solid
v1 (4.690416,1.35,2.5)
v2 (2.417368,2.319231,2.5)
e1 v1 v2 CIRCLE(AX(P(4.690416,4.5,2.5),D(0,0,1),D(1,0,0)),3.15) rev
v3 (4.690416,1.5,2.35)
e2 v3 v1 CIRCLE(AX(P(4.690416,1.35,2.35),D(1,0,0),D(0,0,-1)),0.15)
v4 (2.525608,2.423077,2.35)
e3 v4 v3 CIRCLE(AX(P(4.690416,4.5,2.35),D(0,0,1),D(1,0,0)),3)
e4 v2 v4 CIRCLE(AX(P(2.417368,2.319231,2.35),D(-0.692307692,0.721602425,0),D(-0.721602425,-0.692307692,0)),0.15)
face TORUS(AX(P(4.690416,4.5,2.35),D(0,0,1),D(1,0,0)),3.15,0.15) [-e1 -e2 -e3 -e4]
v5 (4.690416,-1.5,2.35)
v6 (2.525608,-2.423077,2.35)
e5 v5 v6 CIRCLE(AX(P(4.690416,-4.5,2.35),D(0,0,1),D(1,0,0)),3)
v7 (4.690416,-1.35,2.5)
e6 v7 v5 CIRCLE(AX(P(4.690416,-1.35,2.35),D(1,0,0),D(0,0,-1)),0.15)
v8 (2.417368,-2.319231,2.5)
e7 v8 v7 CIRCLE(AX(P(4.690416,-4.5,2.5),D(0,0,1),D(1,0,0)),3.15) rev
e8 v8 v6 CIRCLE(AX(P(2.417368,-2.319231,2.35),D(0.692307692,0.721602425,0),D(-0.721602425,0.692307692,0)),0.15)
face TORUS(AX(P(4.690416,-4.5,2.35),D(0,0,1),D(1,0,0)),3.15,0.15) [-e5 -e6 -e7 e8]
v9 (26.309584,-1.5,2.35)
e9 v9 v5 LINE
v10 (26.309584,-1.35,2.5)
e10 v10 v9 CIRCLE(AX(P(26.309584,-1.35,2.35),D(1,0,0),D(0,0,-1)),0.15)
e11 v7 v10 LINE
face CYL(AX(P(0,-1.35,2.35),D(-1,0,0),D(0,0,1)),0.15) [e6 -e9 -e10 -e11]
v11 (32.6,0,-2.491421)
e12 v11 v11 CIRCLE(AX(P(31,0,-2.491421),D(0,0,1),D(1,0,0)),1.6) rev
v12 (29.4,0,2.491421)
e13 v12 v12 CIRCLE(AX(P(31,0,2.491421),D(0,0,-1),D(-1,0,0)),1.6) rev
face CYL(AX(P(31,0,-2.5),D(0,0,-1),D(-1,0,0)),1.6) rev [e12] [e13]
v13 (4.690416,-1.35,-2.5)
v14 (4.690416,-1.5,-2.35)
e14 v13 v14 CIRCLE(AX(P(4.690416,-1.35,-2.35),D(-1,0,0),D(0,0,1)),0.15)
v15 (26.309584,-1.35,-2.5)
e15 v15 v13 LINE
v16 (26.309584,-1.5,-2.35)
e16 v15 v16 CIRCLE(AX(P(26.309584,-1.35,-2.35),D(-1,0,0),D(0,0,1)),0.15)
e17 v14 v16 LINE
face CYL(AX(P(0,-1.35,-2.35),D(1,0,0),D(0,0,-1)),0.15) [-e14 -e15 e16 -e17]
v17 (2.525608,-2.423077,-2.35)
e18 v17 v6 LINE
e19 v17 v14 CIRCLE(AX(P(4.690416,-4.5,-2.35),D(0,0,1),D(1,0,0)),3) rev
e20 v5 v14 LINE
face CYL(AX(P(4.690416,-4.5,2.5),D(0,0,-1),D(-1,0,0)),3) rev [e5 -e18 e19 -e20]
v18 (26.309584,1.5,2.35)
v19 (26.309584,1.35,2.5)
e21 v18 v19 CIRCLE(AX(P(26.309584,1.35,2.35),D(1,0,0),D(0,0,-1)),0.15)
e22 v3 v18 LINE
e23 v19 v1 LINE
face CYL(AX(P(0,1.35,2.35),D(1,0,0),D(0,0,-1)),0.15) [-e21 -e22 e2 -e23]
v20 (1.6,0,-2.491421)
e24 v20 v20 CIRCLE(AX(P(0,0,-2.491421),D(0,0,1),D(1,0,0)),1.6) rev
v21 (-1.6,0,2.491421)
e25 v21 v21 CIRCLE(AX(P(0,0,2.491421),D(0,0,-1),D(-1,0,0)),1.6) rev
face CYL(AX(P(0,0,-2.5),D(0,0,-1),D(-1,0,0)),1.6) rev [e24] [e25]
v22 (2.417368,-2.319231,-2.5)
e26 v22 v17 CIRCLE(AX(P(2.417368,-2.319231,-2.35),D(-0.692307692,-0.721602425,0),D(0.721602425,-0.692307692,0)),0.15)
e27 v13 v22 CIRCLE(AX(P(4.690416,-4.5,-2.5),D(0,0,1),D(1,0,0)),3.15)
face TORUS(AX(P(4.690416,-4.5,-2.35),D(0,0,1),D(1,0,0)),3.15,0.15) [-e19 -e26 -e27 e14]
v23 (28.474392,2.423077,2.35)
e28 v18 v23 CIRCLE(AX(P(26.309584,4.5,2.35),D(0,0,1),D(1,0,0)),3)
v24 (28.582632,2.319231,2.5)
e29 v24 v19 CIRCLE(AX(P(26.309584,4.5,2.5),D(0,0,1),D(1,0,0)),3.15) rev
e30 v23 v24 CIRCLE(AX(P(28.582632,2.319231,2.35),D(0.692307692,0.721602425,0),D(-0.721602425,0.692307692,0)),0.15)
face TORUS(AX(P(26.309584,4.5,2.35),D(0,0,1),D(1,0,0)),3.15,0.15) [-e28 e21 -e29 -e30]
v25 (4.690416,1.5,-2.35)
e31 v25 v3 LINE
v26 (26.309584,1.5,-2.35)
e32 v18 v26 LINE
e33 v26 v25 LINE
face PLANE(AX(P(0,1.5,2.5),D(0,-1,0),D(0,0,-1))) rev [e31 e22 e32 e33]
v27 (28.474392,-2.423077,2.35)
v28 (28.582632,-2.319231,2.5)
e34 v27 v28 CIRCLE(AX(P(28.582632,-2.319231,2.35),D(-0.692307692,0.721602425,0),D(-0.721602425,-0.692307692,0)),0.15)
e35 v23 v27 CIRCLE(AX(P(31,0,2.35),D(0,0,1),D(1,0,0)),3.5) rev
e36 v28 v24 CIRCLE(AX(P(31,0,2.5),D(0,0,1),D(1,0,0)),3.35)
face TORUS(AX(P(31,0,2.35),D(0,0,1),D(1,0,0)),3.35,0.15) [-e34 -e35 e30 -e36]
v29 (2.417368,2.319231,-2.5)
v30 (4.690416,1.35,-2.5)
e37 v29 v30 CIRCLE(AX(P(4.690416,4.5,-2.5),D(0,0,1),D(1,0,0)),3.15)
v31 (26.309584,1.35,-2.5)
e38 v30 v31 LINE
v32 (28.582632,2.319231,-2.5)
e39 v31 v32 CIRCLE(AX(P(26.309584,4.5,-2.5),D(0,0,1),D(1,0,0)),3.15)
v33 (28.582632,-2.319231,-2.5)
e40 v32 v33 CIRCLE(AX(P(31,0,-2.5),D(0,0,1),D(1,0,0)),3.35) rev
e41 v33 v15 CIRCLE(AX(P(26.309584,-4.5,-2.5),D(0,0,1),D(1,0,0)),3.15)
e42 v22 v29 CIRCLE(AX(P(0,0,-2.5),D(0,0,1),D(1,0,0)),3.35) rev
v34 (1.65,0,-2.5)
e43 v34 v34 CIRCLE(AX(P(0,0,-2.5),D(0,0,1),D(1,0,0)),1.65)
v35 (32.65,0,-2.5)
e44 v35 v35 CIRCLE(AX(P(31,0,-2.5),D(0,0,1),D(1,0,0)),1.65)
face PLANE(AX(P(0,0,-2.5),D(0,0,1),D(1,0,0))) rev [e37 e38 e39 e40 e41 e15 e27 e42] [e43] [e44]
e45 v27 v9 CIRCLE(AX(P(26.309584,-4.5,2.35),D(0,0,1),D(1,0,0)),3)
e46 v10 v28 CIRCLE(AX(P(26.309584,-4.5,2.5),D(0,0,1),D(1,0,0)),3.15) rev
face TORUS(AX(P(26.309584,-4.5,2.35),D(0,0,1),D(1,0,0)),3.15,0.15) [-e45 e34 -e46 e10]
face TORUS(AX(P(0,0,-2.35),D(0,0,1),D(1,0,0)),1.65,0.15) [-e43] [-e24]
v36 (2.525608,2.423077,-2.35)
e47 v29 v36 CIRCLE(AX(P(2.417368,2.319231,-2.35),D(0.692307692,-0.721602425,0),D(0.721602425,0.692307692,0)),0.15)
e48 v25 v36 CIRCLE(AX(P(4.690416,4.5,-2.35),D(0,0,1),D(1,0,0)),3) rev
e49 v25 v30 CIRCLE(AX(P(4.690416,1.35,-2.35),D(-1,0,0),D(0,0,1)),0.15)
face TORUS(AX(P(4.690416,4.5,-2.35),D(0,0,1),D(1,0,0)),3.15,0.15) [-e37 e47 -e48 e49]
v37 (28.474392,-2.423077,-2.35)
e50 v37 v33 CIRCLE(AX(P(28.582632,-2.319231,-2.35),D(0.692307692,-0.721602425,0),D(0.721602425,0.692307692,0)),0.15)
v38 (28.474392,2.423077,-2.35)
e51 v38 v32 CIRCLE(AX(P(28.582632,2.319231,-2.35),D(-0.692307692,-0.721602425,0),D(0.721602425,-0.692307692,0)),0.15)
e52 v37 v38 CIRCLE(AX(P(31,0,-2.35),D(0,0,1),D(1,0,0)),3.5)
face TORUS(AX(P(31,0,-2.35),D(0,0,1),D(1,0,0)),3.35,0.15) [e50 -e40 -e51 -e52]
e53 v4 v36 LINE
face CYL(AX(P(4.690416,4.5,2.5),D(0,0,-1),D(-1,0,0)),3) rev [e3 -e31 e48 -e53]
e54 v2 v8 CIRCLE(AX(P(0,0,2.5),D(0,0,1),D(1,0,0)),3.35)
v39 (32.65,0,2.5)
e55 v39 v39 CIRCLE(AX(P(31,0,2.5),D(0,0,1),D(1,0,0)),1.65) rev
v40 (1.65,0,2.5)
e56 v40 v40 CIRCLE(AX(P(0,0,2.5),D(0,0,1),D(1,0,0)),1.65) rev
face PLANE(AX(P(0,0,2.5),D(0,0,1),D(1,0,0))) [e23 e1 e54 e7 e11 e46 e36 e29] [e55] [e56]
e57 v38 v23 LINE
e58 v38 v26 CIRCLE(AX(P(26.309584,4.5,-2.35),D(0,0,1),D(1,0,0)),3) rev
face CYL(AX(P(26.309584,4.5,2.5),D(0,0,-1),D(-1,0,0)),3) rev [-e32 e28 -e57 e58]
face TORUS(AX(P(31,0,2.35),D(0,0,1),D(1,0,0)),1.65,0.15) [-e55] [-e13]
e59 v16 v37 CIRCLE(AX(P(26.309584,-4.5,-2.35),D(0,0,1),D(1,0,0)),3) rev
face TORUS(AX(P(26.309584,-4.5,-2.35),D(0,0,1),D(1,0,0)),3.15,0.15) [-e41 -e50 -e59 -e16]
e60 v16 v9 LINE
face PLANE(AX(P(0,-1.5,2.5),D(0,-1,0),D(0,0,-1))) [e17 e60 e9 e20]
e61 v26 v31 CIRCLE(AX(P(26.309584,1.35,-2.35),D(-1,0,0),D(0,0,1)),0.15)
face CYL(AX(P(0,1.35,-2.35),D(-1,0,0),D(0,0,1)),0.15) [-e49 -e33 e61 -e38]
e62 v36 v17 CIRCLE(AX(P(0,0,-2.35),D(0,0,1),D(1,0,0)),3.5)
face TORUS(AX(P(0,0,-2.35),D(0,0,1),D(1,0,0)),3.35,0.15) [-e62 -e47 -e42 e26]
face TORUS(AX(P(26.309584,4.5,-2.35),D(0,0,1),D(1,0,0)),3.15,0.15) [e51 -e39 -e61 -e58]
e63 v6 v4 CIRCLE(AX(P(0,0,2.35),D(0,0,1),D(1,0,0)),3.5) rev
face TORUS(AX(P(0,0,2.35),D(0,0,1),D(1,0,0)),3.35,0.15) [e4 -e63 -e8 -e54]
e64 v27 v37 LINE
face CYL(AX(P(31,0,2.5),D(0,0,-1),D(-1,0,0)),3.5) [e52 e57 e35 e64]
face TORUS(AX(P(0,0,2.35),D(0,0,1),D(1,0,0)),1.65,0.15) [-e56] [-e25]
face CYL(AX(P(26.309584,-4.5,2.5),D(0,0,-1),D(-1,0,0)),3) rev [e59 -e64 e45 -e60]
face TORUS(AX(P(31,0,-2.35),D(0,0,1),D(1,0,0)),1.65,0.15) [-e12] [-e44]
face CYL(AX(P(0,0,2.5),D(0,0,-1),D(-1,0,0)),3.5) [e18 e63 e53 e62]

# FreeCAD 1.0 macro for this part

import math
import FreeCAD as App
import Part
import Sketcher

V = App.Vector


def edges_at(feature, points):
    """Names of the edges that pass closest to the given points."""
    edges = feature.Shape.Edges
    near = lambda p: min(range(len(edges)), key=lambda i: edges[i].distToShape(Part.Vertex(*p))[0])
    return sorted({f"Edge{near(p) + 1}" for p in points})

doc = App.newDocument("Part")
params = doc.addObject("Spreadsheet::Sheet", "Params")
for row, (alias, value) in enumerate([
    ("sketch1_diameter", "3 mm"),
    ("sketch1_radius", "3.5 mm"),
    ("pad1_length", "5 mm"),
    ("fillet_radius", "3 mm"),
    ("fillet2_radius", "0.15 mm"),
    ("sketch2_diameter", "3.2 mm"),
    ("hole_diameter", "3.2 mm"),
], start=1):
    params.set(f"A{row}", alias)
    params.set(f"B{row}", "=" + value)
    params.setAlias(f"B{row}", alias)

body = doc.addObject("PartDesign::Body", "Body")

# Sketch on XY plane
sketch1 = body.newObject("Sketcher::SketchObject", "Sketch")
sketch1.AttachmentSupport = (doc.getObject("XY_Plane"), [""])
sketch1.MapMode = "FlatFace"
sketch1.addGeometry([
    Part.ArcOfCircle(Part.Circle(V(0, 0, 0), V(0, 0, 1), 3.5), math.radians(25.376934), math.radians(334.623066)),  # 0
    Part.LineSegment(V(3.162278, -1.5, 0), V(27.837722, -1.5, 0)),  # 1
    Part.ArcOfCircle(Part.Circle(V(31, 0, 0), V(0, 0, 1), 3.5), math.radians(-154.623066), math.radians(154.623066)),  # 2
    Part.LineSegment(V(27.837722, 1.5, 0), V(3.162278, 1.5, 0)),  # 3
    Part.Circle(V(0, 0, 0), V(0, 0, 1), 1.5),  # 4
    Part.Circle(V(31, 0, 0), V(0, 0, 1), 1.5),  # 5
], False)
sketch1.addConstraint([
    Sketcher.Constraint("Coincident", 0, 2, 1, 1),
    Sketcher.Constraint("Coincident", 1, 2, 2, 1),
    Sketcher.Constraint("Coincident", 2, 2, 3, 1),
    Sketcher.Constraint("Coincident", 3, 2, 0, 1),
    Sketcher.Constraint("Horizontal", 1),
    Sketcher.Constraint("Horizontal", 3),
    Sketcher.Constraint("Coincident", 0, 3, -1, 1),
    Sketcher.Constraint("Coincident", 4, 3, -1, 1),
    Sketcher.Constraint("Coincident", 5, 3, 2, 3),
    Sketcher.Constraint("Equal", 0, 2),
    Sketcher.Constraint("Equal", 4, 5),
    Sketcher.Constraint("Symmetric", 1, 2, 2, 2, -1),
    Sketcher.Constraint("Diameter", 4, 3.0),
    Sketcher.Constraint("Radius", 0, 3.5),
    Sketcher.Constraint("DistanceX", -1, 1, 2, 3, 31.0),
    Sketcher.Constraint("DistanceY", 1, 2, 2, 2, 3.0),
])
sketch1.setExpression("Constraints[12]", "Params.sketch1_diameter")
sketch1.setExpression("Constraints[13]", "Params.sketch1_radius")
pad1 = body.newObject("PartDesign::Pad", "Pad")
pad1.Profile = sketch1
pad1.setExpression("Length", "Params.pad1_length")
pad1.Midplane = True
doc.recompute()

fillet = body.newObject("PartDesign::Fillet", "Fillet")
fillet.Base = (pad1, edges_at(pad1, [
    (27.838, 1.5, 0),
    (27.838, -1.5, 1.25),
    (3.162, -1.5, -1.25),
    (3.162, 1.5, 0),
]))
fillet.setExpression("Radius", "Params.fillet_radius")
doc.recompute()

fillet2 = body.newObject("PartDesign::Fillet", "Fillet001")
fillet2.Base = (fillet, edges_at(fillet, [
    (-3.5, 0, -2.5),
    (-3.5, 0, 2.5),
    (-1.5, 0, 2.5),
    (15.5, 1.5, -2.5),
    (15.5, 1.5, 2.5),
    (34.5, 0, -2.5),
    (34.5, 0, 2.5),
    (29.5, 0, 2.5),
    (15.5, -1.5, -2.5),
    (15.5, -1.5, 2.5),
    (3.514, 1.74, -2.5),
    (3.514, 1.74, 2.5),
    (27.486, 1.74, -2.5),
    (27.486, 1.74, 2.5),
    (3.514, -1.74, -2.5),
    (3.514, -1.74, 2.5),
    (27.486, -1.74, -2.5),
    (27.486, -1.74, 2.5),
    (29.5, 0, -2.5),
    (-1.5, 0, -2.5),
]))
fillet2.setExpression("Radius", "Params.fillet2_radius")

# Sketch on XY plane
sketch2 = body.newObject("Sketcher::SketchObject", "Sketch001")
sketch2.AttachmentSupport = (doc.getObject("XY_Plane"), [""])
sketch2.MapMode = "FlatFace"
sketch2.AttachmentOffset = App.Placement(V(0, 0, -2.5), App.Rotation())
sketch2.addGeometry([
    Part.Circle(V(31, 0, 0), V(0, 0, 1), 1.6),
    Part.Circle(V(0, 0, 0), V(0, 0, 1), 1.6),
], False)
sketch2.addConstraint([
    Sketcher.Constraint("Coincident", 1, 3, -1, 1),
    Sketcher.Constraint("Equal", 0, 1),
    Sketcher.Constraint("PointOnObject", 0, 3, -1),
    Sketcher.Constraint("Diameter", 0, 3.2),
    Sketcher.Constraint("DistanceX", -1, 1, 0, 3, 31.0),
])
sketch2.setExpression("Constraints[3]", "Params.sketch2_diameter")
doc.recompute()
hole = body.newObject("PartDesign::Hole", "Hole")
hole.Profile = sketch2
hole.ThreadType = "None"
hole.setExpression("Diameter", "Params.hole_diameter")
hole.DepthType = "ThroughAll"
hole.Reversed = True

doc.recompute()
